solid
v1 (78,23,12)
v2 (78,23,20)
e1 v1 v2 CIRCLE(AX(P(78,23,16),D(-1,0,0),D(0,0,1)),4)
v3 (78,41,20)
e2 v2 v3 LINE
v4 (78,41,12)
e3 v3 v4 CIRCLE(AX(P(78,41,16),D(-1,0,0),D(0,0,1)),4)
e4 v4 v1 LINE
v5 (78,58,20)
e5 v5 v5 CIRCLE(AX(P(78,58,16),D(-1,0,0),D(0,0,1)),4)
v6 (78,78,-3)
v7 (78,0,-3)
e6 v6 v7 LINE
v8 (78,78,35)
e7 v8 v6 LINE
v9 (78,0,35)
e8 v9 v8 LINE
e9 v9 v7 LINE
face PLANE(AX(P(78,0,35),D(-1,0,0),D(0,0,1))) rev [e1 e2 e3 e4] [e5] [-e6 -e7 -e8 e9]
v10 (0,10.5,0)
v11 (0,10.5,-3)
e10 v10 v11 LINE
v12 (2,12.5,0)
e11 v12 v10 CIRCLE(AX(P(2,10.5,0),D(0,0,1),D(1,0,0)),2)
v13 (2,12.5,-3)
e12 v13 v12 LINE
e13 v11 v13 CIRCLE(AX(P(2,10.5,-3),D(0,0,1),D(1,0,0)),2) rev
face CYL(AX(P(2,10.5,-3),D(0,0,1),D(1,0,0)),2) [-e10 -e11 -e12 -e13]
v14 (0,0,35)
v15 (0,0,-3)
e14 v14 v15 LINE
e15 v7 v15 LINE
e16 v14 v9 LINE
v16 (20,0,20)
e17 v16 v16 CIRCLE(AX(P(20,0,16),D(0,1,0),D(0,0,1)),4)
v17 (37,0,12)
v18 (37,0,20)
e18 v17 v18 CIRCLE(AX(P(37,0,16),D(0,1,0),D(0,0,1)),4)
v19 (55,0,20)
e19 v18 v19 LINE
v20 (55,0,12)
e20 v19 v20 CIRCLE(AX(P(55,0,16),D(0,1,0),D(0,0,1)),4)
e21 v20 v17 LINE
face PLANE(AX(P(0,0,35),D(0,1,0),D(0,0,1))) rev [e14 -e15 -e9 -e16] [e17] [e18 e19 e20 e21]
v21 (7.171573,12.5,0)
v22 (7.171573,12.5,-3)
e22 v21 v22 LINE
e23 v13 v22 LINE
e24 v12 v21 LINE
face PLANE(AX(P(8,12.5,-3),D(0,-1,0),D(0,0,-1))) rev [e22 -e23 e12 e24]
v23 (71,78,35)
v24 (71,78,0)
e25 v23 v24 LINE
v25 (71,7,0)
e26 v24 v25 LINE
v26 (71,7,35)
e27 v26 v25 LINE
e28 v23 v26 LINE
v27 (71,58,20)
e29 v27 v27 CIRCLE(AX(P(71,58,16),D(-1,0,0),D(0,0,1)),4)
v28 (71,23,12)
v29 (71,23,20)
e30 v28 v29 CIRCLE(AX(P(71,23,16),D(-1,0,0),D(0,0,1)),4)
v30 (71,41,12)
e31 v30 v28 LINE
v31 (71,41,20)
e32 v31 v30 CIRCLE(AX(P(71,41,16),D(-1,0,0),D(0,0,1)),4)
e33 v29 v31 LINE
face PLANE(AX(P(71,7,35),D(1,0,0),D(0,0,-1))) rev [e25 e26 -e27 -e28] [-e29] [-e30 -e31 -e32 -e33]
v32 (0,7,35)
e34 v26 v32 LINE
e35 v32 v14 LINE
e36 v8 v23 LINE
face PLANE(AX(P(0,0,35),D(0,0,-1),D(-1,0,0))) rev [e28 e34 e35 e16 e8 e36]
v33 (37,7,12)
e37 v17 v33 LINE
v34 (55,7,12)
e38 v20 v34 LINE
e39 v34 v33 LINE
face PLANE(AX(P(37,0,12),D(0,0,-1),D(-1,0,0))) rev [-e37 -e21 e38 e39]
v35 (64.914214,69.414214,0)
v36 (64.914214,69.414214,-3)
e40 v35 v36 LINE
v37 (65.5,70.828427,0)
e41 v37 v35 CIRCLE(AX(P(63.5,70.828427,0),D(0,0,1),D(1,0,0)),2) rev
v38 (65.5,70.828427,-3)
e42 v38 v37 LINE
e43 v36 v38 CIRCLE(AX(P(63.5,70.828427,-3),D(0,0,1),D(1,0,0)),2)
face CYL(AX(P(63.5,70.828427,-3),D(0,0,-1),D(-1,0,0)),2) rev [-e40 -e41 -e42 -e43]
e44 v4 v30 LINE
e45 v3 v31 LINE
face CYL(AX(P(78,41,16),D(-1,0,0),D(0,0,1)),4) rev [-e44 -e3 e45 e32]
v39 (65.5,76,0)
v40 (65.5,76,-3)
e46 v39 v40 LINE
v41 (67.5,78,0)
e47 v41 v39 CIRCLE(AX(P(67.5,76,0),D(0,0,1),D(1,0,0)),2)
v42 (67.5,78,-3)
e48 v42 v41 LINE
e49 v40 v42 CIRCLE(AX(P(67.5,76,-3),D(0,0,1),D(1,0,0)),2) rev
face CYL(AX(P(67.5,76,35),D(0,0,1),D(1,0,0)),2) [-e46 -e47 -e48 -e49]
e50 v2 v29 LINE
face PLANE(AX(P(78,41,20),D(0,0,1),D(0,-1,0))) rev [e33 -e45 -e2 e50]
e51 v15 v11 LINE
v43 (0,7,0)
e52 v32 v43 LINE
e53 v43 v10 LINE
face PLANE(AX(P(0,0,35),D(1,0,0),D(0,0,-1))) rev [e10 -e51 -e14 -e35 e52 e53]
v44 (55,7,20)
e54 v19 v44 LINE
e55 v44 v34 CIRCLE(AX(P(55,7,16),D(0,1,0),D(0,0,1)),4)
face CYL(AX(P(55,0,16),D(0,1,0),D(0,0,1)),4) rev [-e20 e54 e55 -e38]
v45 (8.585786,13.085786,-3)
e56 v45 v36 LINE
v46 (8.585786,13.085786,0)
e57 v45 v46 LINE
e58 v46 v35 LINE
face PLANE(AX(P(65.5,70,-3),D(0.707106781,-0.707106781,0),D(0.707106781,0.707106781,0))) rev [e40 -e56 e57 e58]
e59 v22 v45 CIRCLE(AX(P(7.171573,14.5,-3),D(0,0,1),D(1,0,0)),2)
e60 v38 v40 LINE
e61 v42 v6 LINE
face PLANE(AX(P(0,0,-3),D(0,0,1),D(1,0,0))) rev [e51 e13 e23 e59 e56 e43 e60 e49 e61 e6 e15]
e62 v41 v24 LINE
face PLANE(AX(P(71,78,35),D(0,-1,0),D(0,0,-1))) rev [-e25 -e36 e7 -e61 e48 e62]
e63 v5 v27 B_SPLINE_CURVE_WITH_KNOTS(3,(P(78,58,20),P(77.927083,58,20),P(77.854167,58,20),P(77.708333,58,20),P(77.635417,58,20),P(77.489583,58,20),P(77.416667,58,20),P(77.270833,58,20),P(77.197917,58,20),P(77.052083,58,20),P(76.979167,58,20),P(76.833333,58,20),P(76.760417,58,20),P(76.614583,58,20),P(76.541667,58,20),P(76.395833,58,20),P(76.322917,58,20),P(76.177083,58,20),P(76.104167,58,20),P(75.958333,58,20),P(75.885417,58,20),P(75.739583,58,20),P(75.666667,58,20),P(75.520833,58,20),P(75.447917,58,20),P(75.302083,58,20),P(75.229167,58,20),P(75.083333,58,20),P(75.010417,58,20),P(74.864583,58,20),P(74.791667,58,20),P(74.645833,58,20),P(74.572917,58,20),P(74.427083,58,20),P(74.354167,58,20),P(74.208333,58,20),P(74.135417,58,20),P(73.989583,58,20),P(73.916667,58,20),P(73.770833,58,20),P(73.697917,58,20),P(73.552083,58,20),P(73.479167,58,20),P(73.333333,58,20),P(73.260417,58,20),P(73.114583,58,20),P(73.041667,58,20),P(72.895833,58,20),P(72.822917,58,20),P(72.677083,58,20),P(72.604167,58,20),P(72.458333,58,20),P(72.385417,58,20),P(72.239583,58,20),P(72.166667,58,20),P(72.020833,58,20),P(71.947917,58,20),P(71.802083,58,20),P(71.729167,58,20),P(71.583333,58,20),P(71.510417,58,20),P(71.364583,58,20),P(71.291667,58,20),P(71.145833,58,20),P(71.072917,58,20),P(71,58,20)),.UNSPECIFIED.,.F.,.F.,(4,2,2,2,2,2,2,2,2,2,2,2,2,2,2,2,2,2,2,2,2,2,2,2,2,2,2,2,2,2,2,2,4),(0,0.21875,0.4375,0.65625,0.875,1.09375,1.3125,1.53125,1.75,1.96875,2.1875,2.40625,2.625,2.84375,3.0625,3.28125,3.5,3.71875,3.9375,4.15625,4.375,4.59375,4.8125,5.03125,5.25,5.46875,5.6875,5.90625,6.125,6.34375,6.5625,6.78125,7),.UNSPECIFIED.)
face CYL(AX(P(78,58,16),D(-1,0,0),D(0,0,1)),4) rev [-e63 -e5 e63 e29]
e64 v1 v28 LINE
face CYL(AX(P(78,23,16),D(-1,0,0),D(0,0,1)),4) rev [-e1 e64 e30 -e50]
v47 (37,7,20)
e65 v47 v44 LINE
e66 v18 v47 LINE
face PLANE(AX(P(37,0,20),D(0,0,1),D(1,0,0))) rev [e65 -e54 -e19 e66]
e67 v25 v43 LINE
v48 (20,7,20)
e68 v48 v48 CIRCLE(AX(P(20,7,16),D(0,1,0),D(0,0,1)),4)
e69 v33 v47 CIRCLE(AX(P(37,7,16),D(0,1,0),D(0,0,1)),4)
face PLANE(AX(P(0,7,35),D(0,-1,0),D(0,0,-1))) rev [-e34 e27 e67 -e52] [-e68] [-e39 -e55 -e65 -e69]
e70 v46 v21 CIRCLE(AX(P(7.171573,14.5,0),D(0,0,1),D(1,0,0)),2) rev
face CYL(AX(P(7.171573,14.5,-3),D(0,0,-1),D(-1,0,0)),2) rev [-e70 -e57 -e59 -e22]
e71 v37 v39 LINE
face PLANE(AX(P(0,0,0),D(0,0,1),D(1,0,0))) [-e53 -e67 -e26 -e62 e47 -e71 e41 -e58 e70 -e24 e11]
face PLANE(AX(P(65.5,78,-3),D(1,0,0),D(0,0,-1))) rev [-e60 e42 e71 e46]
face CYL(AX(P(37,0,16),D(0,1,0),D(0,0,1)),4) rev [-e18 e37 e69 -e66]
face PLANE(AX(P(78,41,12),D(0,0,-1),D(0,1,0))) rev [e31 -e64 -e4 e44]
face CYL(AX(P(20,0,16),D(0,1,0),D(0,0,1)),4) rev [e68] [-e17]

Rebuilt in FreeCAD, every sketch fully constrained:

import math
import FreeCAD as App
import Part
import Sketcher


def edges_at(feature, points):
    """Names of the edges that pass closest to the given points."""
    edges = feature.Shape.Edges
    near = lambda p: min(range(len(edges)), key=lambda i: edges[i].distToShape(Part.Vertex(*p))[0])
    return sorted({f"Edge{near(p) + 1}" for p in points})


def add_polygon(sketch, points):
    """Adds a closed chain of lines whose ends are joined by coincident constraints."""
    first, n = sketch.GeometryCount, len(points)
    for a, b in zip(points, points[1:] + points[:1]):
        sketch.addGeometry(Part.LineSegment(App.Vector(*a, 0), App.Vector(*b, 0)), False)
    for i in range(n):
        sketch.addConstraint(Sketcher.Constraint("Coincident", first + i, 2, first + (i + 1) % n, 1))

doc = App.newDocument("Part")
body = doc.addObject("PartDesign::Body", "Body")

# Sketch on XY plane
sketch1 = body.newObject("Sketcher::SketchObject", "Sketch")
sketch1.AttachmentSupport = (doc.getObject("XY_Plane"), [""])
sketch1.MapMode = "FlatFace"
add_polygon(sketch1, [(0, 0), (78, 0), (78, 78), (71, 78), (71, 7), (0, 7)])  # lines 0-5
sketch1.addConstraint(Sketcher.Constraint("Horizontal", 0))
sketch1.addConstraint(Sketcher.Constraint("Vertical", 1))
sketch1.addConstraint(Sketcher.Constraint("Horizontal", 2))
sketch1.addConstraint(Sketcher.Constraint("Vertical", 3))
sketch1.addConstraint(Sketcher.Constraint("Horizontal", 4))
sketch1.addConstraint(Sketcher.Constraint("Vertical", 5))
sketch1.addConstraint(Sketcher.Constraint("Coincident", 5, 2, -1, 1))
sketch1.addConstraint(Sketcher.Constraint("Equal", 0, 1))
sketch1.addConstraint(Sketcher.Constraint("Equal", 4, 3))
sketch1.addConstraint(Sketcher.Constraint("DistanceX", 0, 1, 0, 2, 78.0))
sketch1.addConstraint(Sketcher.Constraint("DistanceX", 2, 2, 2, 1, 7.0))
pad1 = body.newObject("PartDesign::Pad", "Pad")
pad1.Profile = sketch1
pad1.Length = 35

# Sketch on XY plane
sketch2 = body.newObject("Sketcher::SketchObject", "Sketch001")
sketch2.AttachmentSupport = (doc.getObject("XY_Plane"), [""])
sketch2.MapMode = "FlatFace"
add_polygon(sketch2, [(78, 78), (78, 0), (0, 0), (0, 12), (8, 12), (66, 70), (66, 78)])  # lines 0-6
sketch2.addConstraint(Sketcher.Constraint("Vertical", 0))
sketch2.addConstraint(Sketcher.Constraint("Horizontal", 1))
sketch2.addConstraint(Sketcher.Constraint("Vertical", 2))
sketch2.addConstraint(Sketcher.Constraint("Horizontal", 3))
sketch2.addConstraint(Sketcher.Constraint("Vertical", 5))
sketch2.addConstraint(Sketcher.Constraint("Horizontal", 6))
sketch2.addConstraint(Sketcher.Constraint("Coincident", 1, 2, -1, 1))
sketch2.addConstraint(Sketcher.Constraint("Equal", 1, 0))
sketch2.addConstraint(Sketcher.Constraint("Equal", 6, 2))
sketch2.addConstraint(Sketcher.Constraint("Equal", 3, 5))
sketch2.addConstraint(Sketcher.Constraint("DistanceX", 1, 2, 1, 1, 78.0))
sketch2.addConstraint(Sketcher.Constraint("DistanceX", 3, 1, 3, 2, 8.0))
sketch2.addConstraint(Sketcher.Constraint("DistanceX", 6, 1, 6, 2, 12.5))
pad2 = body.newObject("PartDesign::Pad", "Pad001")
pad2.Profile = sketch2
pad2.Length = 3
pad2.Reversed = True

# Sketch on YZ plane
sketch3 = body.newObject("Sketcher::SketchObject", "Sketch002")
sketch3.AttachmentSupport = (doc.getObject("YZ_Plane"), [""])
sketch3.MapMode = "FlatFace"
sketch3.AttachmentOffset = App.Placement(App.Vector(0, 0, 71), App.Rotation())
sketch3.addGeometry(Part.Circle(App.Vector(58, 16, 0), App.Vector(0, 0, 1), 4), False)
sketch3.addGeometry(Part.LineSegment(App.Vector(41, 12, 0), App.Vector(23, 12, 0)), False)
sketch3.addGeometry(Part.ArcOfCircle(Part.Circle(App.Vector(23, 16, 0), App.Vector(0, 0, 1), 4), math.radians(90), math.radians(270)), False)
sketch3.addGeometry(Part.LineSegment(App.Vector(23, 20, 0), App.Vector(41, 20, 0)), False)
sketch3.addGeometry(Part.ArcOfCircle(Part.Circle(App.Vector(41, 16, 0), App.Vector(0, 0, 1), 4), math.radians(-90), math.radians(90)), False)
sketch3.addConstraint(Sketcher.Constraint("Tangent", 1, 2, 2, 2))
sketch3.addConstraint(Sketcher.Constraint("Tangent", 2, 1, 3, 1))
sketch3.addConstraint(Sketcher.Constraint("Tangent", 3, 2, 4, 2))
sketch3.addConstraint(Sketcher.Constraint("Tangent", 4, 1, 1, 1))
sketch3.addConstraint(Sketcher.Constraint("Horizontal", 1))
sketch3.addConstraint(Sketcher.Constraint("Horizontal", 3))
sketch3.addConstraint(Sketcher.Constraint("Equal", 0, 2))
sketch3.addConstraint(Sketcher.Constraint("Horizontal", 0, 3, 2, 3))
sketch3.addConstraint(Sketcher.Constraint("Diameter", 0, 8.0))
sketch3.addConstraint(Sketcher.Constraint("DistanceX", 1, 2, 1, 1, 18.0))
sketch3.addConstraint(Sketcher.Constraint("DistanceX", -1, 1, 0, 3, 58.0))
sketch3.addConstraint(Sketcher.Constraint("DistanceY", -1, 1, 0, 3, 16.0))
sketch3.addConstraint(Sketcher.Constraint("DistanceX", -1, 1, 2, 3, 23.0))
pocket1 = body.newObject("PartDesign::Pocket", "Pocket")
pocket1.Profile = sketch3
pocket1.Type = "ThroughAll"
pocket1.Reversed = True

# Sketch on XZ plane
sketch4 = body.newObject("Sketcher::SketchObject", "Sketch003")
sketch4.AttachmentSupport = (doc.getObject("XZ_Plane"), [""])
sketch4.MapMode = "FlatFace"
sketch4.AttachmentOffset = App.Placement(App.Vector(0, 0, -7), App.Rotation())
sketch4.addGeometry(Part.Circle(App.Vector(20, 16, 0), App.Vector(0, 0, 1), 4), False)
sketch4.addGeometry(Part.LineSegment(App.Vector(37, 20, 0), App.Vector(55, 20, 0)), False)
sketch4.addGeometry(Part.ArcOfCircle(Part.Circle(App.Vector(55, 16, 0), App.Vector(0, 0, 1), 4), math.radians(-90), math.radians(90)), False)
sketch4.addGeometry(Part.LineSegment(App.Vector(55, 12, 0), App.Vector(37, 12, 0)), False)
sketch4.addGeometry(Part.ArcOfCircle(Part.Circle(App.Vector(37, 16, 0), App.Vector(0, 0, 1), 4), math.radians(90), math.radians(270)), False)
sketch4.addConstraint(Sketcher.Constraint("Tangent", 1, 2, 2, 2))
sketch4.addConstraint(Sketcher.Constraint("Tangent", 2, 1, 3, 1))
sketch4.addConstraint(Sketcher.Constraint("Tangent", 3, 2, 4, 2))
sketch4.addConstraint(Sketcher.Constraint("Tangent", 4, 1, 1, 1))
sketch4.addConstraint(Sketcher.Constraint("Horizontal", 1))
sketch4.addConstraint(Sketcher.Constraint("Horizontal", 3))
sketch4.addConstraint(Sketcher.Constraint("Equal", 0, 2))
sketch4.addConstraint(Sketcher.Constraint("Horizontal", 0, 3, 2, 3))
sketch4.addConstraint(Sketcher.Constraint("Diameter", 0, 8.0))
sketch4.addConstraint(Sketcher.Constraint("DistanceX", 1, 1, 1, 2, 18.0))
sketch4.addConstraint(Sketcher.Constraint("DistanceX", -1, 1, 0, 3, 20.0))
sketch4.addConstraint(Sketcher.Constraint("DistanceY", -1, 1, 0, 3, 16.0))
sketch4.addConstraint(Sketcher.Constraint("DistanceX", -1, 1, 2, 3, 55.0))
pocket2 = body.newObject("PartDesign::Pocket", "Pocket001")
pocket2.Profile = sketch4
pocket2.Type = "ThroughAll"
pocket2.Reversed = True
doc.recompute()

fillet = body.newObject("PartDesign::Fillet", "Fillet")
fillet.Base = (pocket2, edges_at(pocket2, [(65.5, 78, -1.5), (0, 12.5, -1.5)]))
fillet.Radius = 2
doc.recompute()

fillet2 = body.newObject("PartDesign::Fillet", "Fillet001")
fillet2.Base = (fillet, edges_at(fillet, [(8, 12.5, -1.5), (65.5, 70, -1.5)]))
fillet2.Radius = 2

doc.recompute()
